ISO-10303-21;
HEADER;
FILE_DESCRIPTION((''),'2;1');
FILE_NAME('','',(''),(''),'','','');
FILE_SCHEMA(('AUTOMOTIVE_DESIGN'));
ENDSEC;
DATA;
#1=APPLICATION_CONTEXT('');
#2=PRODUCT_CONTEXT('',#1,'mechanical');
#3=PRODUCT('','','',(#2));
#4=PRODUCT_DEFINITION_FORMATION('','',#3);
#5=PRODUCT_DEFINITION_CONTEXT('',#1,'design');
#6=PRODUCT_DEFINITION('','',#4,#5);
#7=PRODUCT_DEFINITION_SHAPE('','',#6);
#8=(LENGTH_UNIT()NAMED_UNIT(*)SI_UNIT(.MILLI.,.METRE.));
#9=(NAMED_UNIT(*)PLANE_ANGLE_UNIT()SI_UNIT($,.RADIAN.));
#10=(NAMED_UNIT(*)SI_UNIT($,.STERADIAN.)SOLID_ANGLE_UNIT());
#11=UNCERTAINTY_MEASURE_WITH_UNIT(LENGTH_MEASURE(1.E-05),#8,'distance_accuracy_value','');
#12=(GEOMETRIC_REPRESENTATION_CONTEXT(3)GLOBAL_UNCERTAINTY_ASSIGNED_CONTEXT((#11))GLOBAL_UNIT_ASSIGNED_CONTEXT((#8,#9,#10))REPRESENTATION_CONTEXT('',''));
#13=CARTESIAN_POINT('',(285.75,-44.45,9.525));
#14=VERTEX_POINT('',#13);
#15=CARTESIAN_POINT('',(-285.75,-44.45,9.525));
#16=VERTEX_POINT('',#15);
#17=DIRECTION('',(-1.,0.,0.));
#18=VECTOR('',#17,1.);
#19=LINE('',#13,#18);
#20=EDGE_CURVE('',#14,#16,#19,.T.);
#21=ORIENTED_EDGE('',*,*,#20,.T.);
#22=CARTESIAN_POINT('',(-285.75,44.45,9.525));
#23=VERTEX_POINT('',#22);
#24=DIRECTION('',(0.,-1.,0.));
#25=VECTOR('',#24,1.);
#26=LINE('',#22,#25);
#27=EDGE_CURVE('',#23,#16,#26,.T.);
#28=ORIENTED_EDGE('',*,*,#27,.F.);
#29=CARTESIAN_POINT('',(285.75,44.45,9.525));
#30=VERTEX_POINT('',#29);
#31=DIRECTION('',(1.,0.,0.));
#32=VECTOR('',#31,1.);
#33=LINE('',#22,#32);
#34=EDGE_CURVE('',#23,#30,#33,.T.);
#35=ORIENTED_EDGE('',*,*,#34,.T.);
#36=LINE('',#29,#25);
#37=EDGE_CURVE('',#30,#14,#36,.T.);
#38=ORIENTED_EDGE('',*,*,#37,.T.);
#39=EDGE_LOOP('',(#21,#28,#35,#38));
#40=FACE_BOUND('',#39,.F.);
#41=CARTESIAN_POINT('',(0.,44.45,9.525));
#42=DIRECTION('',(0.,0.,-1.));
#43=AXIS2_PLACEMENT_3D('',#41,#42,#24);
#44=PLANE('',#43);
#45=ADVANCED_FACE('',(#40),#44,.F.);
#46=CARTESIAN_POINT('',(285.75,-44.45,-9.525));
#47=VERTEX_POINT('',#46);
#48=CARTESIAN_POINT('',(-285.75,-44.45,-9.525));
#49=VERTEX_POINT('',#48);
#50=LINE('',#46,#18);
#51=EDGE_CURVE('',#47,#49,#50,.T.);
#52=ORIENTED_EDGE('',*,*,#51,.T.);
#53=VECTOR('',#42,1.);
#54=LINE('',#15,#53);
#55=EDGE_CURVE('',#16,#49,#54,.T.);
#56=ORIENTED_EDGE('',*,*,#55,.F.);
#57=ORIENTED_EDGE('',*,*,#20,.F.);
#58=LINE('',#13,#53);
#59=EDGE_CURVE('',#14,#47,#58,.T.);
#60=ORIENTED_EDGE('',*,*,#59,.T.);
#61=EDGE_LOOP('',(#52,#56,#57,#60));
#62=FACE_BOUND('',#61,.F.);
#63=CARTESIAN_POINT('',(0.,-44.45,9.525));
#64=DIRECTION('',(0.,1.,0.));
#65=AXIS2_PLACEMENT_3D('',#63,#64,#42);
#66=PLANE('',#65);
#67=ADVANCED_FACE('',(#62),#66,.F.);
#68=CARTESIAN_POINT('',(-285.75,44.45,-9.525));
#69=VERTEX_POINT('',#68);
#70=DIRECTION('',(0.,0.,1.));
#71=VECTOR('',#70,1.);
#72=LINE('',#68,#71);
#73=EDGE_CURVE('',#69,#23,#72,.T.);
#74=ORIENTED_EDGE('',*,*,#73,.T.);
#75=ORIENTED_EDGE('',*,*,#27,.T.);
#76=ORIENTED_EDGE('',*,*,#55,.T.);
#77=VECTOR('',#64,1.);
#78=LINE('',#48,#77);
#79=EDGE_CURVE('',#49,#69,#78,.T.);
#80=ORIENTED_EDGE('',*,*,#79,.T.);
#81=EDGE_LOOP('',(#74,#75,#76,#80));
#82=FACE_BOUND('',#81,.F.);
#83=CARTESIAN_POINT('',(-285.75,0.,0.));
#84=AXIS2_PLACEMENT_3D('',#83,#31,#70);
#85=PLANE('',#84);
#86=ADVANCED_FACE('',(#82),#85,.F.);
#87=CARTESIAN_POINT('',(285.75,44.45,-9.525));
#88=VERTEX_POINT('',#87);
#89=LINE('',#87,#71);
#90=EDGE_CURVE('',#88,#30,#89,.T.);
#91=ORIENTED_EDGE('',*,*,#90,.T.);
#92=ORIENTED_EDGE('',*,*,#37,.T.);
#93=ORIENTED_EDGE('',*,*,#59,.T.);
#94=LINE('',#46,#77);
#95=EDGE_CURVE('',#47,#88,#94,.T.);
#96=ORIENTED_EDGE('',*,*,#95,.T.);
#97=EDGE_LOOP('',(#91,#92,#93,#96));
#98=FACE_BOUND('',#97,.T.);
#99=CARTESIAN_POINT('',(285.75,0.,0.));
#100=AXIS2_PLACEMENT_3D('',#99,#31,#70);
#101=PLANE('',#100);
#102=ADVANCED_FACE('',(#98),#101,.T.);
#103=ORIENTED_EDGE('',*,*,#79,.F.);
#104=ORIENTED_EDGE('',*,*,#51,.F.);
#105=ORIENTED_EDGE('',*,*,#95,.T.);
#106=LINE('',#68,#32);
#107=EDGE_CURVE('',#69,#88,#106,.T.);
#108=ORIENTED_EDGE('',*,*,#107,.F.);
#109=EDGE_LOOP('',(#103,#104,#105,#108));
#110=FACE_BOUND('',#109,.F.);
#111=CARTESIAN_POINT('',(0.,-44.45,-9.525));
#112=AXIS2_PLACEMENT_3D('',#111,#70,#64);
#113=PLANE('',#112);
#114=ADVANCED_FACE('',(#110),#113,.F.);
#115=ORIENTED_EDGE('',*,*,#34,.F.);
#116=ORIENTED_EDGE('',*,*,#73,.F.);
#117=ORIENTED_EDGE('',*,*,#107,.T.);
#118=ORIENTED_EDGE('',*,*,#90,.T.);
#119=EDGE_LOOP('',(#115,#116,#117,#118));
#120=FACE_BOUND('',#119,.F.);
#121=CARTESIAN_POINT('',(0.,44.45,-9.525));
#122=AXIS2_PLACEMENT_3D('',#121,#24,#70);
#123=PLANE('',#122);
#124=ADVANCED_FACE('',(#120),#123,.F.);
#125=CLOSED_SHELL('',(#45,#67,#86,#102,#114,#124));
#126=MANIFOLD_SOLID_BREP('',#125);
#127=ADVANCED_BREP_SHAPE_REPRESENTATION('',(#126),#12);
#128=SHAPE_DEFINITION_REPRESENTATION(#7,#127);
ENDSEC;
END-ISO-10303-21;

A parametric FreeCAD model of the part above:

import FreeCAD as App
import Part
import Sketcher
from FreeCAD import Vector
Q = App.Units.Quantity


def add_polygon(sketch, points):
    """Adds a closed chain of lines whose ends are joined by coincident constraints."""
    first, n = sketch.GeometryCount, len(points)
    for a, b in zip(points, points[1:] + points[:1]):
        sketch.addGeometry(Part.LineSegment(App.Vector(*a, 0), App.Vector(*b, 0)), False)
    for i in range(n):
        sketch.addConstraint(Sketcher.Constraint("Coincident", first + i, 2, first + (i + 1) % n, 1))

doc = App.newDocument("Part")
params = doc.addObject("Spreadsheet::Sheet", "Params")
for row, (alias, value) in enumerate([
    ("sketch1_height", "0.75 in"),
    ("pad1_length", "22.5 in"),
], start=1):
    params.set(f"A{row}", alias)
    params.set(f"B{row}", "=" + value)
    params.setAlias(f"B{row}", alias)

body = doc.addObject("PartDesign::Body", "Body")

sketch1 = doc.addObject("Sketcher::SketchObject", "Sketch")
body.addObject(sketch1)
sketch1.AttachmentSupport = (doc.YZ_Plane, [""])
sketch1.MapMode = "FlatFace"
add_polygon(sketch1, [(-44, 10), (-44, -10), (44, -10), (44, 10)])
sketch1.addConstraint(Sketcher.Constraint("Vertical", 0))
sketch1.addConstraint(Sketcher.Constraint("Horizontal", 1))
sketch1.addConstraint(Sketcher.Constraint("Vertical", 2))
sketch1.addConstraint(Sketcher.Constraint("Horizontal", 3))
sketch1.addConstraint(Sketcher.Constraint("Symmetric", 0, 2, 2, 2, -1, 1))
sketch1.addConstraint(Sketcher.Constraint("DistanceX", 0, 2, -1, 1, Q("1.75 in")))
sketch1.addConstraint(Sketcher.Constraint("DistanceY", 0, 2, 0, 1, Q("0.75 in")))
sketch1.setExpression("Constraints[10]", "Params.sketch1_height")
pad1 = doc.addObject("PartDesign::Pad", "Pad")
body.addObject(pad1)
pad1.Profile = sketch1
pad1.setExpression("Length", "Params.pad1_length")
pad1.Midplane = True

doc.recompute()
